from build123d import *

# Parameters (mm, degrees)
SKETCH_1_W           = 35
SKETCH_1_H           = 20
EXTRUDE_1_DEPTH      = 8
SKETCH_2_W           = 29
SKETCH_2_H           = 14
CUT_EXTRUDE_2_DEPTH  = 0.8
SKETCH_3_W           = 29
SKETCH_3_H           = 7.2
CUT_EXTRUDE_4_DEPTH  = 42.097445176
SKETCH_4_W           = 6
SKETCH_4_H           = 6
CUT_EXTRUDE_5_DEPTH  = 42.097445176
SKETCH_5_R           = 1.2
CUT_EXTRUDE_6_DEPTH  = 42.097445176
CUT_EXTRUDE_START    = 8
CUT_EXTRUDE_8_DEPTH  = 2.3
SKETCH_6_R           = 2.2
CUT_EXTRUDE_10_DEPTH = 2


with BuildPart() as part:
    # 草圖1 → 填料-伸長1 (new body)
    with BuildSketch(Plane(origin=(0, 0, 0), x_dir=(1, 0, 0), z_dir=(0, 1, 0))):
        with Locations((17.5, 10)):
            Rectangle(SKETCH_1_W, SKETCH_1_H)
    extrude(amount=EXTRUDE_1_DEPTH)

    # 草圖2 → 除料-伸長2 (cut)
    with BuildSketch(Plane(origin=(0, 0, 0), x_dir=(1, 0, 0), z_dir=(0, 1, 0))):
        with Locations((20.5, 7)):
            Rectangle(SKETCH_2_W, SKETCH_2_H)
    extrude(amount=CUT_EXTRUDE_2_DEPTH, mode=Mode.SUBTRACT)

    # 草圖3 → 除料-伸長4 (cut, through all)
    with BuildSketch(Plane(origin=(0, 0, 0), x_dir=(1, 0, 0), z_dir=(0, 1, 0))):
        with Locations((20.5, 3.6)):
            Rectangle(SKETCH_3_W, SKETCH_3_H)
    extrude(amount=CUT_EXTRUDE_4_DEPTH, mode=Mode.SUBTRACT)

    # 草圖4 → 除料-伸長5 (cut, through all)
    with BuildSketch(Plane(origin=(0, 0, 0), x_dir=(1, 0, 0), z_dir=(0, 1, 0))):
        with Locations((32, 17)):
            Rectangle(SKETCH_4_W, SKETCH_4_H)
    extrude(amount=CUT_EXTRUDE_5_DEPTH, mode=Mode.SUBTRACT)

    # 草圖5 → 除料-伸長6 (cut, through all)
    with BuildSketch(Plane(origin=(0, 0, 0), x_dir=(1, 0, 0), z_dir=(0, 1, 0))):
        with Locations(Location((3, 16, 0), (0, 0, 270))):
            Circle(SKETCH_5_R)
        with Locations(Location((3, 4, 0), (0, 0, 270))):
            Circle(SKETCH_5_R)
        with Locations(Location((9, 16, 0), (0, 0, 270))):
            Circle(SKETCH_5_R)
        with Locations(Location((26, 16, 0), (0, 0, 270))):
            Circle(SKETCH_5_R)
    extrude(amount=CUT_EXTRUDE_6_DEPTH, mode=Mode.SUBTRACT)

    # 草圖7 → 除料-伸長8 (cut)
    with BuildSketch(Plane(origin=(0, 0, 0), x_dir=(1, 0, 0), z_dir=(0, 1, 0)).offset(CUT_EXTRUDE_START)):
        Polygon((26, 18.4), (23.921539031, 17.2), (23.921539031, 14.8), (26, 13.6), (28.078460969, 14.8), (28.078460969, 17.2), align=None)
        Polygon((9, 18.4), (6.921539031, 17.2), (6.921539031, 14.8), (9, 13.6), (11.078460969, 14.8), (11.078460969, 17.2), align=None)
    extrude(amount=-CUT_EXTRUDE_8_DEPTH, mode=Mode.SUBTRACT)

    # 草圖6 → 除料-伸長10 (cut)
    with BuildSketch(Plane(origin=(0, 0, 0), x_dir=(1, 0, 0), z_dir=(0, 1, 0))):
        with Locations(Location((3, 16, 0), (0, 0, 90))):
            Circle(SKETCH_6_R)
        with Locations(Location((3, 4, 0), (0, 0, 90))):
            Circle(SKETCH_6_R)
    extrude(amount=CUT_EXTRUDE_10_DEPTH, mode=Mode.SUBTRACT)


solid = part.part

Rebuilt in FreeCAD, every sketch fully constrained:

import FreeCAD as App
import Part
import Sketcher
Q = App.Units.Quantity

doc = App.newDocument("Part")
body = doc.addObject("PartDesign::Body", "Body")

# Sketch on XZ plane
sketch1 = body.newObject("Sketcher::SketchObject", "Sketch")
sketch1.AttachmentSupport = (doc.getObject("XZ_Plane"), [""])
sketch1.MapMode = "FlatFace"
sketch1.addGeometry(Part.LineSegment(App.Vector(0, -20, 0), App.Vector(0, 0, 0)), False)
sketch1.addGeometry(Part.LineSegment(App.Vector(0, 0, 0), App.Vector(35, 0, 0)), False)
sketch1.addGeometry(Part.LineSegment(App.Vector(35, 0, 0), App.Vector(35, -20, 0)), False)
sketch1.addGeometry(Part.LineSegment(App.Vector(35, -20, 0), App.Vector(0, -20, 0)), False)
sketch1.addConstraint(Sketcher.Constraint("Coincident", 0, 2, 1, 1))
sketch1.addConstraint(Sketcher.Constraint("Coincident", 1, 2, 2, 1))
sketch1.addConstraint(Sketcher.Constraint("Coincident", 2, 2, 3, 1))
sketch1.addConstraint(Sketcher.Constraint("Coincident", 3, 2, 0, 1))
sketch1.addConstraint(Sketcher.Constraint("Vertical", 0))
sketch1.addConstraint(Sketcher.Constraint("Horizontal", 1))
sketch1.addConstraint(Sketcher.Constraint("Vertical", 2))
sketch1.addConstraint(Sketcher.Constraint("Horizontal", 3))
sketch1.addConstraint(Sketcher.Constraint("Coincident", 0, 2, -1, 1))
sketch1.addConstraint(Sketcher.Constraint("DistanceX", 1, 1, 1, 2, 35.0))
sketch1.addConstraint(Sketcher.Constraint("DistanceY", 0, 1, 0, 2, 20.0))
pad1 = body.newObject("PartDesign::Pad", "Pad")
pad1.Profile = sketch1
pad1.Length = 8
pad1.Reversed = True

# Sketch on XZ plane
sketch2 = body.newObject("Sketcher::SketchObject", "Sketch001")
sketch2.AttachmentSupport = (doc.getObject("XZ_Plane"), [""])
sketch2.MapMode = "FlatFace"
sketch2.addGeometry(Part.LineSegment(App.Vector(6, -14, 0), App.Vector(6, 0, 0)), False)
sketch2.addGeometry(Part.LineSegment(App.Vector(6, 0, 0), App.Vector(35, 0, 0)), False)
sketch2.addGeometry(Part.LineSegment(App.Vector(35, 0, 0), App.Vector(35, -14, 0)), False)
sketch2.addGeometry(Part.LineSegment(App.Vector(35, -14, 0), App.Vector(6, -14, 0)), False)
sketch2.addConstraint(Sketcher.Constraint("Coincident", 0, 2, 1, 1))
sketch2.addConstraint(Sketcher.Constraint("Coincident", 1, 2, 2, 1))
sketch2.addConstraint(Sketcher.Constraint("Coincident", 2, 2, 3, 1))
sketch2.addConstraint(Sketcher.Constraint("Coincident", 3, 2, 0, 1))
sketch2.addConstraint(Sketcher.Constraint("Vertical", 0))
sketch2.addConstraint(Sketcher.Constraint("Horizontal", 1))
sketch2.addConstraint(Sketcher.Constraint("Vertical", 2))
sketch2.addConstraint(Sketcher.Constraint("Horizontal", 3))
sketch2.addConstraint(Sketcher.Constraint("PointOnObject", 0, 2, -1))
sketch2.addConstraint(Sketcher.Constraint("DistanceX", 1, 1, 1, 2, 29.0))
sketch2.addConstraint(Sketcher.Constraint("DistanceY", 0, 1, 0, 2, 14.0))
sketch2.addConstraint(Sketcher.Constraint("DistanceX", -1, 1, 0, 2, 6.0))
pocket1 = body.newObject("PartDesign::Pocket", "Pocket")
pocket1.Profile = sketch2
pocket1.Length = 0.8

# Sketch on XZ plane
sketch3 = body.newObject("Sketcher::SketchObject", "Sketch002")
sketch3.AttachmentSupport = (doc.getObject("XZ_Plane"), [""])
sketch3.MapMode = "FlatFace"
sketch3.addGeometry(Part.LineSegment(App.Vector(6, -7, 0), App.Vector(6, 0, 0)), False)
sketch3.addGeometry(Part.LineSegment(App.Vector(6, 0, 0), App.Vector(35, 0, 0)), False)
sketch3.addGeometry(Part.LineSegment(App.Vector(35, 0, 0), App.Vector(35, -7, 0)), False)
sketch3.addGeometry(Part.LineSegment(App.Vector(35, -7, 0), App.Vector(6, -7, 0)), False)
sketch3.addConstraint(Sketcher.Constraint("Coincident", 0, 2, 1, 1))
sketch3.addConstraint(Sketcher.Constraint("Coincident", 1, 2, 2, 1))
sketch3.addConstraint(Sketcher.Constraint("Coincident", 2, 2, 3, 1))
sketch3.addConstraint(Sketcher.Constraint("Coincident", 3, 2, 0, 1))
sketch3.addConstraint(Sketcher.Constraint("Vertical", 0))
sketch3.addConstraint(Sketcher.Constraint("Horizontal", 1))
sketch3.addConstraint(Sketcher.Constraint("Vertical", 2))
sketch3.addConstraint(Sketcher.Constraint("Horizontal", 3))
sketch3.addConstraint(Sketcher.Constraint("PointOnObject", 0, 2, -1))
sketch3.addConstraint(Sketcher.Constraint("DistanceX", 1, 1, 1, 2, 29.0))
sketch3.addConstraint(Sketcher.Constraint("DistanceY", 0, 1, 0, 2, 7.2))
sketch3.addConstraint(Sketcher.Constraint("DistanceX", -1, 1, 0, 2, 6.0))
pocket2 = body.newObject("PartDesign::Pocket", "Pocket001")
pocket2.Profile = sketch3
pocket2.Type = "ThroughAll"

# Sketch on XZ plane
sketch4 = body.newObject("Sketcher::SketchObject", "Sketch003")
sketch4.AttachmentSupport = (doc.getObject("XZ_Plane"), [""])
sketch4.MapMode = "FlatFace"
sketch4.addGeometry(Part.LineSegment(App.Vector(29, -20, 0), App.Vector(29, -14, 0)), False)
sketch4.addGeometry(Part.LineSegment(App.Vector(29, -14, 0), App.Vector(35, -14, 0)), False)
sketch4.addGeometry(Part.LineSegment(App.Vector(35, -14, 0), App.Vector(35, -20, 0)), False)
sketch4.addGeometry(Part.LineSegment(App.Vector(35, -20, 0), App.Vector(29, -20, 0)), False)
sketch4.addConstraint(Sketcher.Constraint("Coincident", 0, 2, 1, 1))
sketch4.addConstraint(Sketcher.Constraint("Coincident", 1, 2, 2, 1))
sketch4.addConstraint(Sketcher.Constraint("Coincident", 2, 2, 3, 1))
sketch4.addConstraint(Sketcher.Constraint("Coincident", 3, 2, 0, 1))
sketch4.addConstraint(Sketcher.Constraint("Vertical", 0))
sketch4.addConstraint(Sketcher.Constraint("Horizontal", 1))
sketch4.addConstraint(Sketcher.Constraint("Vertical", 2))
sketch4.addConstraint(Sketcher.Constraint("Horizontal", 3))
sketch4.addConstraint(Sketcher.Constraint("Equal", 3, 0))
sketch4.addConstraint(Sketcher.Constraint("DistanceX", 1, 1, 1, 2, 6.0))
sketch4.addConstraint(Sketcher.Constraint("DistanceX", -1, 1, 0, 2, 29.0))
sketch4.addConstraint(Sketcher.Constraint("DistanceY", 0, 2, -1, 1, 14.0))
pocket3 = body.newObject("PartDesign::Pocket", "Pocket002")
pocket3.Profile = sketch4
pocket3.Type = "ThroughAll"

# Sketch on XZ plane
sketch5 = body.newObject("Sketcher::SketchObject", "Sketch004")
sketch5.AttachmentSupport = (doc.getObject("XZ_Plane"), [""])
sketch5.MapMode = "FlatFace"
sketch5.addGeometry(Part.Circle(App.Vector(3, -16, 0), App.Vector(0, 0, 1), 1.2), False)
sketch5.addGeometry(Part.Circle(App.Vector(3, -4, 0), App.Vector(0, 0, 1), 1.2), False)
sketch5.addGeometry(Part.Circle(App.Vector(9, -16, 0), App.Vector(0, 0, 1), 1.2), False)
sketch5.addGeometry(Part.Circle(App.Vector(26, -16, 0), App.Vector(0, 0, 1), 1.2), False)
sketch5.addConstraint(Sketcher.Constraint("Equal", 0, 1))
sketch5.addConstraint(Sketcher.Constraint("Equal", 1, 2))
sketch5.addConstraint(Sketcher.Constraint("Equal", 2, 3))
sketch5.addConstraint(Sketcher.Constraint("Horizontal", 0, 3, 2, 3))
sketch5.addConstraint(Sketcher.Constraint("Horizontal", 2, 3, 3, 3))
sketch5.addConstraint(Sketcher.Constraint("Vertical", 0, 3, 1, 3))
sketch5.addConstraint(Sketcher.Constraint("Diameter", 0, 2.4))
sketch5.addConstraint(Sketcher.Constraint("DistanceX", -1, 1, 0, 3, 3.0))
sketch5.addConstraint(Sketcher.Constraint("DistanceY", 0, 3, -1, 1, 16.0))
sketch5.addConstraint(Sketcher.Constraint("DistanceY", 1, 3, -1, 1, 4.0))
sketch5.addConstraint(Sketcher.Constraint("DistanceX", -1, 1, 2, 3, 9.0))
sketch5.addConstraint(Sketcher.Constraint("DistanceX", -1, 1, 3, 3, 26.0))
pocket4 = body.newObject("PartDesign::Pocket", "Pocket003")
pocket4.Profile = sketch5
pocket4.Type = "ThroughAll"

# Sketch on XZ plane
sketch6 = body.newObject("Sketcher::SketchObject", "Sketch005")
sketch6.AttachmentSupport = (doc.getObject("XZ_Plane"), [""])
sketch6.MapMode = "FlatFace"
sketch6.AttachmentOffset = App.Placement(App.Vector(0, 0, -8), App.Rotation())
sketch6.addGeometry(Part.LineSegment(App.Vector(26, -18.4, 0), App.Vector(23.9, -17.2, 0)), False)
sketch6.addGeometry(Part.LineSegment(App.Vector(23.9, -17.2, 0), App.Vector(23.9, -14.8, 0)), False)
sketch6.addGeometry(Part.LineSegment(App.Vector(23.9, -14.8, 0), App.Vector(26, -13.6, 0)), False)
sketch6.addGeometry(Part.LineSegment(App.Vector(26, -13.6, 0), App.Vector(28.1, -14.8, 0)), False)
sketch6.addGeometry(Part.LineSegment(App.Vector(28.1, -14.8, 0), App.Vector(28.1, -17.2, 0)), False)
sketch6.addGeometry(Part.LineSegment(App.Vector(28.1, -17.2, 0), App.Vector(26, -18.4, 0)), False)
sketch6.addGeometry(Part.LineSegment(App.Vector(9, -18.4, 0), App.Vector(6.9, -17.2, 0)), False)
sketch6.addGeometry(Part.LineSegment(App.Vector(6.9, -17.2, 0), App.Vector(6.9, -14.8, 0)), False)
sketch6.addGeometry(Part.LineSegment(App.Vector(6.9, -14.8, 0), App.Vector(9, -13.6, 0)), False)
sketch6.addGeometry(Part.LineSegment(App.Vector(9, -13.6, 0), App.Vector(11.1, -14.8, 0)), False)
sketch6.addGeometry(Part.LineSegment(App.Vector(11.1, -14.8, 0), App.Vector(11.1, -17.2, 0)), False)
sketch6.addGeometry(Part.LineSegment(App.Vector(11.1, -17.2, 0), App.Vector(9, -18.4, 0)), False)
sketch6.addConstraint(Sketcher.Constraint("Coincident", 0, 2, 1, 1))
sketch6.addConstraint(Sketcher.Constraint("Coincident", 1, 2, 2, 1))
sketch6.addConstraint(Sketcher.Constraint("Coincident", 2, 2, 3, 1))
sketch6.addConstraint(Sketcher.Constraint("Coincident", 3, 2, 4, 1))
sketch6.addConstraint(Sketcher.Constraint("Coincident", 4, 2, 5, 1))
sketch6.addConstraint(Sketcher.Constraint("Coincident", 5, 2, 0, 1))
sketch6.addConstraint(Sketcher.Constraint("Coincident", 6, 2, 7, 1))
sketch6.addConstraint(Sketcher.Constraint("Coincident", 7, 2, 8, 1))
sketch6.addConstraint(Sketcher.Constraint("Coincident", 8, 2, 9, 1))
sketch6.addConstraint(Sketcher.Constraint("Coincident", 9, 2, 10, 1))
sketch6.addConstraint(Sketcher.Constraint("Coincident", 10, 2, 11, 1))
sketch6.addConstraint(Sketcher.Constraint("Coincident", 11, 2, 6, 1))
sketch6.addConstraint(Sketcher.Constraint("Vertical", 1))
sketch6.addConstraint(Sketcher.Constraint("Vertical", 4))
sketch6.addConstraint(Sketcher.Constraint("Vertical", 7))
sketch6.addConstraint(Sketcher.Constraint("Vertical", 10))
sketch6.addConstraint(Sketcher.Constraint("Parallel", 0, 3))
sketch6.addConstraint(Sketcher.Constraint("Parallel", 2, 5))
sketch6.addConstraint(Sketcher.Constraint("Parallel", 3, 6))
sketch6.addConstraint(Sketcher.Constraint("Parallel", 5, 8))
sketch6.addConstraint(Sketcher.Constraint("Parallel", 6, 9))
sketch6.addConstraint(Sketcher.Constraint("Parallel", 8, 11))
sketch6.addConstraint(Sketcher.Constraint("Horizontal", 1, 2, 3, 2))
sketch6.addConstraint(Sketcher.Constraint("Horizontal", 0, 2, 4, 2))
sketch6.addConstraint(Sketcher.Constraint("Horizontal", 4, 2, 6, 2))
sketch6.addConstraint(Sketcher.Constraint("Horizontal", 3, 2, 7, 2))
sketch6.addConstraint(Sketcher.Constraint("Horizontal", 2, 2, 8, 2))
sketch6.addConstraint(Sketcher.Constraint("Horizontal", 7, 2, 9, 2))
sketch6.addConstraint(Sketcher.Constraint("Horizontal", 6, 2, 10, 2))
sketch6.addConstraint(Sketcher.Constraint("Vertical", 2, 2, 5, 2))
sketch6.addConstraint(Sketcher.Constraint("Angle", 0, Q("150 deg")))
sketch6.addConstraint(Sketcher.Constraint("DistanceY", 1, 1, 1, 2, 2.4))
sketch6.addConstraint(Sketcher.Constraint("DistanceX", -1, 1, 2, 2, 26.0))
sketch6.addConstraint(Sketcher.Constraint("DistanceX", -1, 1, 8, 2, 9.0))
sketch6.addConstraint(Sketcher.Constraint("Distance", 0, 2.4))
sketch6.addConstraint(Sketcher.Constraint("DistanceY", 0, 2, -1, 1, 17.2))
pocket5 = body.newObject("PartDesign::Pocket", "Pocket004")
pocket5.Profile = sketch6
pocket5.Length = 2.3
pocket5.Reversed = True

# Sketch on XZ plane
sketch7 = body.newObject("Sketcher::SketchObject", "Sketch006")
sketch7.AttachmentSupport = (doc.getObject("XZ_Plane"), [""])
sketch7.MapMode = "FlatFace"
sketch7.addGeometry(Part.Circle(App.Vector(3, -16, 0), App.Vector(0, 0, 1), 2.2), False)
sketch7.addGeometry(Part.Circle(App.Vector(3, -4, 0), App.Vector(0, 0, 1), 2.2), False)
sketch7.addConstraint(Sketcher.Constraint("Equal", 0, 1))
sketch7.addConstraint(Sketcher.Constraint("Vertical", 0, 3, 1, 3))
sketch7.addConstraint(Sketcher.Constraint("Diameter", 0, 4.4))
sketch7.addConstraint(Sketcher.Constraint("DistanceX", -1, 1, 0, 3, 3.0))
sketch7.addConstraint(Sketcher.Constraint("DistanceY", 0, 3, -1, 1, 16.0))
sketch7.addConstraint(Sketcher.Constraint("DistanceY", 1, 3, -1, 1, 4.0))
pocket6 = body.newObject("PartDesign::Pocket", "Pocket005")
pocket6.Profile = sketch7
pocket6.Length = 2

doc.recompute()
